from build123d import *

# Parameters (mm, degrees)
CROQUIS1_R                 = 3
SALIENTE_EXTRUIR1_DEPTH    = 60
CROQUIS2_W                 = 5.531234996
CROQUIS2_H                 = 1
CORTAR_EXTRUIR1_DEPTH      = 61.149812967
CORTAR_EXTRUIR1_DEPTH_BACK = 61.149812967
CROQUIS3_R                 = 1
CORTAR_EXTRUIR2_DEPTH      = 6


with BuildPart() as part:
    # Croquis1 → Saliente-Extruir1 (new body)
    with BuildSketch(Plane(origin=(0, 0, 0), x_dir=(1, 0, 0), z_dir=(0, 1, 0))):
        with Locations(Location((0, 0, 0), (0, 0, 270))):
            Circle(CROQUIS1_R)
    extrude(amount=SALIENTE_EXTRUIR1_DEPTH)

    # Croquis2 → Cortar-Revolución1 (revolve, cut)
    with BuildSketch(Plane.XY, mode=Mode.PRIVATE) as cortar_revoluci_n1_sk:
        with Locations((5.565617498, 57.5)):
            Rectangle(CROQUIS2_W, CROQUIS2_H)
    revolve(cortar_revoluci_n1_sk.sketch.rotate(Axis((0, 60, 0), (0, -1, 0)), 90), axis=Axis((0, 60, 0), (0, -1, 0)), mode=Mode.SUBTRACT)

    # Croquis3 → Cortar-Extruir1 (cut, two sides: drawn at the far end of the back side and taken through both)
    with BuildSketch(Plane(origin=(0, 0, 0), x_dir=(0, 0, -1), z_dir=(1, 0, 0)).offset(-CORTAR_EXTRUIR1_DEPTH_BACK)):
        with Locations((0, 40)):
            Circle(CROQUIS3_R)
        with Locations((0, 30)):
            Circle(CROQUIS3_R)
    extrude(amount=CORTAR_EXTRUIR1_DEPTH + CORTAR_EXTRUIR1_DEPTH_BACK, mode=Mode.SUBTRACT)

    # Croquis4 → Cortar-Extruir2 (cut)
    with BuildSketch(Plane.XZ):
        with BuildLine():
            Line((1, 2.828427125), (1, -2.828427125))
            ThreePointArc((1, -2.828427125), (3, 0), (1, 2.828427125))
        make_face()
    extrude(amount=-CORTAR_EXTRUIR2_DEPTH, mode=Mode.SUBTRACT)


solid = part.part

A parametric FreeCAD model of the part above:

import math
import FreeCAD as App
import Part
import Sketcher
Q = App.Units.Quantity


def add_polygon(sketch, points):
    """Adds a closed chain of lines whose ends are joined by coincident constraints."""
    first, n = sketch.GeometryCount, len(points)
    for a, b in zip(points, points[1:] + points[:1]):
        sketch.addGeometry(Part.LineSegment(App.Vector(*a, 0), App.Vector(*b, 0)), False)
    for i in range(n):
        sketch.addConstraint(Sketcher.Constraint("Coincident", first + i, 2, first + (i + 1) % n, 1))

doc = App.newDocument("Part")
body = doc.addObject("PartDesign::Body", "Body")

sketch1 = doc.addObject("Sketcher::SketchObject", "Sketch")
body.addObject(sketch1)
sketch1.AttachmentSupport = (doc.XZ_Plane, [""])
sketch1.MapMode = "FlatFace"
sketch1.addGeometry(Part.Circle(App.Vector(0, 0, 0), App.Vector(0, 0, 1), 3), False)
sketch1.addConstraint(Sketcher.Constraint("Coincident", 0, 3, -1, 1))
sketch1.addConstraint(Sketcher.Constraint("Diameter", 0, Q("6 mm")))
pad1 = doc.addObject("PartDesign::Pad", "Pad")
body.addObject(pad1)
pad1.Profile = sketch1
pad1.Length = 60
pad1.Reversed = True

sketch2 = doc.addObject("Sketcher::SketchObject", "Sketch001")
body.addObject(sketch2)
sketch2.AttachmentSupport = (doc.XY_Plane, [""])
sketch2.MapMode = "FlatFace"
add_polygon(sketch2, [(2.8, 58), (2.8, 57), (8.3, 57), (8.3, 58)])
sketch2.addConstraint(Sketcher.Constraint("Vertical", 0))
sketch2.addConstraint(Sketcher.Constraint("Horizontal", 1))
sketch2.addConstraint(Sketcher.Constraint("Vertical", 2))
sketch2.addConstraint(Sketcher.Constraint("Horizontal", 3))
sketch2.addConstraint(Sketcher.Constraint("DistanceY", 0, 2, 0, 1, Q("1 mm")))
sketch2.addConstraint(Sketcher.Constraint("DistanceY", -1, 1, 0, 2, Q("57 mm")))
sketch2.addConstraint(Sketcher.Constraint("DistanceX", -1, 1, 0, 2, Q("2.8 mm")))
sketch2.addConstraint(Sketcher.Constraint("DistanceX", 1, 1, 1, 2, Q("5.531235 mm")))
groove = doc.addObject("PartDesign::Groove", "Groove")
body.addObject(groove)
groove.Profile = sketch2
groove.ReferenceAxis = (sketch2, ["V_Axis"])
groove.Angle = 360

sketch3 = doc.addObject("Sketcher::SketchObject", "Sketch002")
body.addObject(sketch3)
sketch3.AttachmentSupport = (doc.YZ_Plane, [""])
sketch3.MapMode = "FlatFace"
sketch3.addGeometry(Part.Circle(App.Vector(40, 0, 0), App.Vector(0, 0, 1), 1), False)
sketch3.addGeometry(Part.Circle(App.Vector(30, 0, 0), App.Vector(0, 0, 1), 1), False)
sketch3.addConstraint(Sketcher.Constraint("Equal", 0, 1))
sketch3.addConstraint(Sketcher.Constraint("PointOnObject", 0, 3, -1))
sketch3.addConstraint(Sketcher.Constraint("PointOnObject", 1, 3, -1))
sketch3.addConstraint(Sketcher.Constraint("Diameter", 0, Q("2 mm")))
sketch3.addConstraint(Sketcher.Constraint("DistanceX", -1, 1, 0, 3, Q("40 mm")))
sketch3.addConstraint(Sketcher.Constraint("DistanceX", -1, 1, 1, 3, Q("30 mm")))
pocket1 = doc.addObject("PartDesign::Pocket", "Pocket")
body.addObject(pocket1)
pocket1.Profile = sketch3
pocket1.Type = "ThroughAll"
pocket1.Midplane = True

sketch4 = doc.addObject("Sketcher::SketchObject", "Sketch003")
body.addObject(sketch4)
sketch4.AttachmentSupport = (doc.XZ_Plane, [""])
sketch4.MapMode = "FlatFace"
sketch4.addGeometry(Part.LineSegment(App.Vector(1, 2.8, 0), App.Vector(1, -2.8, 0)), False)
sketch4.addGeometry(Part.ArcOfCircle(Part.Circle(App.Vector(0, 0, 0), App.Vector(0, 0, 1), 3), math.radians(-71), math.radians(71)), False)
sketch4.addConstraint(Sketcher.Constraint("Coincident", 0, 1, 1, 2))
sketch4.addConstraint(Sketcher.Constraint("Coincident", 1, 1, 0, 2))
sketch4.addConstraint(Sketcher.Constraint("Vertical", 0))
sketch4.addConstraint(Sketcher.Constraint("Coincident", 1, 3, -1, 1))
sketch4.addConstraint(Sketcher.Constraint("Radius", 1, Q("3 mm")))
sketch4.addConstraint(Sketcher.Constraint("DistanceX", -1, 1, 0, 1, Q("1 mm")))
pocket2 = doc.addObject("PartDesign::Pocket", "Pocket001")
body.addObject(pocket2)
pocket2.Profile = sketch4
pocket2.Length = 6

doc.recompute()
